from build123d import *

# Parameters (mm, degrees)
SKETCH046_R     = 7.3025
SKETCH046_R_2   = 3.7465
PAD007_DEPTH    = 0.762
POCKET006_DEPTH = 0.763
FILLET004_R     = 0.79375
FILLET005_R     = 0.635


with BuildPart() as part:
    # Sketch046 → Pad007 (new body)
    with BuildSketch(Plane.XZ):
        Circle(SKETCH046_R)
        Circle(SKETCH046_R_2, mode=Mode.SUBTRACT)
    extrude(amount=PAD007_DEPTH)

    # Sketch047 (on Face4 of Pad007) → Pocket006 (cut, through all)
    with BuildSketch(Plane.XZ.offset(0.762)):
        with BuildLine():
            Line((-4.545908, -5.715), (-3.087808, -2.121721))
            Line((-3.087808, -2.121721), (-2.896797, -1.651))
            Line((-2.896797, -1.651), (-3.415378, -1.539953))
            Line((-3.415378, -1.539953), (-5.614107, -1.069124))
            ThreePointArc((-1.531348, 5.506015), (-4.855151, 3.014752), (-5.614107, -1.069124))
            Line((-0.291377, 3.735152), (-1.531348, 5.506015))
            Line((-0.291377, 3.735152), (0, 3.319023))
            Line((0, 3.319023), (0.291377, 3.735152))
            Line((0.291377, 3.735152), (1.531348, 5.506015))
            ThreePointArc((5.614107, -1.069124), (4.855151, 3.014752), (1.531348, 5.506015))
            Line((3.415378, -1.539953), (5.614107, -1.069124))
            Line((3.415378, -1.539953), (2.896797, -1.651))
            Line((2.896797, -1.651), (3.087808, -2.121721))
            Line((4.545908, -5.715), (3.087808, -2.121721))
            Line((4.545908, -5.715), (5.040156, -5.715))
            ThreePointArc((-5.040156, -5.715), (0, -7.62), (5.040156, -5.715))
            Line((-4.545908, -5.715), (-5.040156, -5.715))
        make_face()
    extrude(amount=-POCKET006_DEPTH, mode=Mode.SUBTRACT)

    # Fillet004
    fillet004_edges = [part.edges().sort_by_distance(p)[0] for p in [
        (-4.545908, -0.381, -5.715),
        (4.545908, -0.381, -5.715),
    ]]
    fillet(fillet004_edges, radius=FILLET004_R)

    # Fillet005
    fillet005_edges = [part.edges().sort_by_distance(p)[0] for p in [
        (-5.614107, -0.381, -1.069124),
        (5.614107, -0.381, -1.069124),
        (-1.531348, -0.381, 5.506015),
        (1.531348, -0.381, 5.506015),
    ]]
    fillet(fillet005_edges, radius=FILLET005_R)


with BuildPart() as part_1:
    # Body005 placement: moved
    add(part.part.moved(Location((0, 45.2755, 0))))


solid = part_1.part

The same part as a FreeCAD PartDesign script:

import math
import FreeCAD as App
import Part
import Sketcher

V = App.Vector
Q = App.Units.Quantity


def edges_at(feature, points):
    """Names of the edges that pass closest to the given points."""
    edges = feature.Shape.Edges
    near = lambda p: min(range(len(edges)), key=lambda i: edges[i].distToShape(Part.Vertex(*p))[0])
    return sorted({f"Edge{near(p) + 1}" for p in points})

doc = App.newDocument("Part")
body = doc.addObject("PartDesign::Body", "Body")

sketch1 = doc.addObject("Sketcher::SketchObject", "Sketch")
body.addObject(sketch1)
sketch1.AttachmentSupport = (doc.XZ_Plane, [""])
sketch1.MapMode = "FlatFace"
sketch1.addGeometry(Part.Circle(V(0, 0, 0), V(0, 0, 1), 7.3), False)
sketch1.addGeometry(Part.Circle(V(0, 0, 0), V(0, 0, 1), 3.7), False)
sketch1.addConstraint(Sketcher.Constraint("Coincident", 0, 3, -1, 1))
sketch1.addConstraint(Sketcher.Constraint("Coincident", 1, 3, -1, 1))
sketch1.addConstraint(Sketcher.Constraint("Diameter", 0, Q("0.575 in")))
sketch1.addConstraint(Sketcher.Constraint("Diameter", 1, Q("0.295 in")))
pad1 = doc.addObject("PartDesign::Pad", "Pad")
body.addObject(pad1)
pad1.Profile = sketch1
pad1.Length = Q("0.03 in")

sketch2 = doc.addObject("Sketcher::SketchObject", "Sketch001")
body.addObject(sketch2)
sketch2.AttachmentSupport = (doc.XZ_Plane, [""])
sketch2.MapMode = "FlatFace"
sketch2.AttachmentOffset = App.Placement(V(0, 0, 0.03 * 25.4), App.Rotation())
sketch2.addGeometry(Part.LineSegment(V(-3.09, -2.12, 0), V(-4.55, -5.71, 0)), False)
sketch2.addGeometry(Part.LineSegment(V(-4.55, -5.71, 0), V(-5.04, -5.71, 0)), False)
sketch2.addGeometry(Part.ArcOfCircle(Part.Circle(V(0, 0, 0), V(0, 0, 1), 7.62), math.radians(-131), math.radians(-49)), False)
sketch2.addGeometry(Part.LineSegment(V(5.04, -5.71, 0), V(4.55, -5.71, 0)), False)
sketch2.addGeometry(Part.LineSegment(V(4.55, -5.71, 0), V(3.09, -2.12, 0)), False)
sketch2.addGeometry(Part.LineSegment(V(3.09, -2.12, 0), V(2.9, -1.65, 0)), False)
sketch2.addGeometry(Part.LineSegment(V(2.9, -1.65, 0), V(3.42, -1.54, 0)), False)
sketch2.addGeometry(Part.LineSegment(V(3.42, -1.54, 0), V(5.61, -1.07, 0)), False)
sketch2.addGeometry(Part.ArcOfCircle(Part.Circle(V(0, 0, 0), V(0, 0, 1), 5.72), math.radians(-11), math.radians(74)), False)
sketch2.addGeometry(Part.LineSegment(V(1.53, 5.51, 0), V(0.29, 3.74, 0)), False)
sketch2.addGeometry(Part.LineSegment(V(0.29, 3.74, 0), V(0, 3.32, 0)), False)
sketch2.addGeometry(Part.LineSegment(V(0, 3.32, 0), V(-0.29, 3.74, 0)), False)
sketch2.addGeometry(Part.LineSegment(V(-0.29, 3.74, 0), V(-1.53, 5.51, 0)), False)
sketch2.addGeometry(Part.ArcOfCircle(Part.Circle(V(0, 0, 0), V(0, 0, 1), 5.72), math.radians(106), math.radians(191)), False)
sketch2.addGeometry(Part.LineSegment(V(-5.61, -1.07, 0), V(-3.42, -1.54, 0)), False)
sketch2.addGeometry(Part.LineSegment(V(-3.42, -1.54, 0), V(-2.9, -1.65, 0)), False)
sketch2.addGeometry(Part.LineSegment(V(-2.9, -1.65, 0), V(-3.09, -2.12, 0)), False)
sketch2.addConstraint(Sketcher.Constraint("Coincident", 0, 2, 1, 1))
sketch2.addConstraint(Sketcher.Constraint("Coincident", 1, 2, 2, 1))
sketch2.addConstraint(Sketcher.Constraint("Coincident", 2, 2, 3, 1))
sketch2.addConstraint(Sketcher.Constraint("Coincident", 3, 2, 4, 1))
sketch2.addConstraint(Sketcher.Constraint("Coincident", 4, 2, 5, 1))
sketch2.addConstraint(Sketcher.Constraint("Coincident", 5, 2, 6, 1))
sketch2.addConstraint(Sketcher.Constraint("Coincident", 6, 2, 7, 1))
sketch2.addConstraint(Sketcher.Constraint("Coincident", 7, 2, 8, 1))
sketch2.addConstraint(Sketcher.Constraint("Coincident", 8, 2, 9, 1))
sketch2.addConstraint(Sketcher.Constraint("Coincident", 9, 2, 10, 1))
sketch2.addConstraint(Sketcher.Constraint("Coincident", 10, 2, 11, 1))
sketch2.addConstraint(Sketcher.Constraint("Coincident", 11, 2, 12, 1))
sketch2.addConstraint(Sketcher.Constraint("Coincident", 12, 2, 13, 1))
sketch2.addConstraint(Sketcher.Constraint("Coincident", 13, 2, 14, 1))
sketch2.addConstraint(Sketcher.Constraint("Coincident", 14, 2, 15, 1))
sketch2.addConstraint(Sketcher.Constraint("Coincident", 15, 2, 16, 1))
sketch2.addConstraint(Sketcher.Constraint("Coincident", 16, 2, 0, 1))
sketch2.addConstraint(Sketcher.Constraint("Horizontal", 1))
sketch2.addConstraint(Sketcher.Constraint("Horizontal", 3))
sketch2.addConstraint(Sketcher.Constraint("Coincident", 2, 3, -1, 1))
sketch2.addConstraint(Sketcher.Constraint("Coincident", 8, 3, -1, 1))
sketch2.addConstraint(Sketcher.Constraint("Coincident", 13, 3, -1, 1))
sketch2.addConstraint(Sketcher.Constraint("Equal", 8, 13))
sketch2.addConstraint(Sketcher.Constraint("Symmetric", 0, 2, 3, 2, -2))
sketch2.addConstraint(Sketcher.Constraint("Symmetric", 9, 2, 11, 2, -2))
sketch2.addConstraint(Sketcher.Constraint("Symmetric", 6, 2, 14, 2, -2))
sketch2.addConstraint(Sketcher.Constraint("Symmetric", 5, 2, 15, 2, -2))
sketch2.addConstraint(Sketcher.Constraint("Symmetric", 4, 2, 16, 2, -2))
sketch2.addConstraint(Sketcher.Constraint("PointOnObject", 10, 2, -2))
sketch2.addConstraint(Sketcher.Constraint("Parallel", 4, 5))
sketch2.addConstraint(Sketcher.Constraint("Parallel", 6, 7))
sketch2.addConstraint(Sketcher.Constraint("Parallel", 9, 10))
sketch2.addConstraint(Sketcher.Constraint("Parallel", 11, 12))
sketch2.addConstraint(Sketcher.Constraint("Parallel", 14, 15))
sketch2.addConstraint(Sketcher.Constraint("Equal", 5, 10))
sketch2.addConstraint(Sketcher.Constraint("Radius", 2, Q("0.3 in")))
sketch2.addConstraint(Sketcher.Constraint("Angle", 9, Q("-124.999987 deg")))
sketch2.addConstraint(Sketcher.Constraint("Radius", 8, Q("0.225 in")))
sketch2.addConstraint(Sketcher.Constraint("Distance", 5, Q("0.02 in")))
sketch2.addConstraint(Sketcher.Constraint("DistanceY", 3, 2, 5, 2, Q("0.16 in")))
sketch2.addConstraint(Sketcher.Constraint("DistanceY", 0, 2, -1, 1, Q("0.225 in")))
sketch2.addConstraint(Sketcher.Constraint("DistanceX", 4, 2, 3, 2, Q("1.4581 mm")))
sketch2.addConstraint(Sketcher.Constraint("DistanceX", 8, 3, 5, 2, Q("2.896799 mm")))
sketch2.addConstraint(Sketcher.Constraint("DistanceX", 4, 2, 7, 2, Q("2.526299 mm")))
sketch2.addConstraint(Sketcher.Constraint("DistanceX", -1, 1, 6, 2, Q("3.415378 mm")))
sketch2.addConstraint(Sketcher.Constraint("DistanceX", -1, 1, 8, 2, Q("1.531348 mm")))
pocket1 = doc.addObject("PartDesign::Pocket", "Pocket")
body.addObject(pocket1)
pocket1.Profile = sketch2
pocket1.Type = "ThroughAll"
doc.recompute()

fillet = doc.addObject("PartDesign::Fillet", "Fillet")
body.addObject(fillet)
fillet.Base = (pocket1, edges_at(pocket1, [(-4.546, -0.381, -5.715), (4.546, -0.381, -5.715)]))
fillet.Radius = Q("0.03125 in")
doc.recompute()

fillet2 = doc.addObject("PartDesign::Fillet", "Fillet001")
body.addObject(fillet2)
fillet2.Base = (fillet, edges_at(fillet, [
    (-5.614, -0.381, -1.069),
    (5.614, -0.381, -1.069),
    (-1.531, -0.381, 5.506),
    (1.531, -0.381, 5.506),
]))
fillet2.Radius = Q("0.025 in")
body2 = doc.addObject("PartDesign::Body", "Body001")
doc.recompute()

body.Placement = App.Placement(V(0, 45.2755, 0), App.Rotation(V(0, 0, 1), 0))
boolean = doc.addObject("PartDesign::Boolean", "Boolean")
body2.addObject(boolean)
boolean.Type = "Fuse"
boolean.addObjects([body])

doc.recompute()
